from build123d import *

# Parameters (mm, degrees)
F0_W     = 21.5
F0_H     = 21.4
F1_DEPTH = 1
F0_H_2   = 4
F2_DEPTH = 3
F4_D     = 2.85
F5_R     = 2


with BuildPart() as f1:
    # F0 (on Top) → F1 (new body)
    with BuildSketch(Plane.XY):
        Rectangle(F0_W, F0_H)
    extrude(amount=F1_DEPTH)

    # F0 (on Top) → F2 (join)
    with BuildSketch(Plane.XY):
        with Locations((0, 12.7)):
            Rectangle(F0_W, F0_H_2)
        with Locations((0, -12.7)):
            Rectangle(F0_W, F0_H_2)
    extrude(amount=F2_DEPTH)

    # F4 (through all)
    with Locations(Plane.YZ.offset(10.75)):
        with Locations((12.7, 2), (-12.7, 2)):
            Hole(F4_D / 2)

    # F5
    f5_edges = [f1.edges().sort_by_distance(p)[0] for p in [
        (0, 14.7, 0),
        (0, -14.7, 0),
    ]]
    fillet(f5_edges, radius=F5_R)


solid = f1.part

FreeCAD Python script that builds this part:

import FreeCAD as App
import Part
import Sketcher
Q = App.Units.Quantity


def edges_at(feature, points):
    """Names of the edges that pass closest to the given points."""
    edges = feature.Shape.Edges
    near = lambda p: min(range(len(edges)), key=lambda i: edges[i].distToShape(Part.Vertex(*p))[0])
    return sorted({f"Edge{near(p) + 1}" for p in points})

doc = App.newDocument("Part")
body = doc.addObject("PartDesign::Body", "Body")

sketch1 = body.newObject("Sketcher::SketchObject", "Sketch")
sketch1.AttachmentSupport = (doc.getObject("XY_Plane"), [""])
sketch1.MapMode = "FlatFace"
sketch1.addGeometry([
    Part.LineSegment(App.Vector(-11, 11, 0), App.Vector(-11, -11, 0)),
    Part.LineSegment(App.Vector(-11, -11, 0), App.Vector(11, -11, 0)),
    Part.LineSegment(App.Vector(11, -11, 0), App.Vector(11, 11, 0)),
    Part.LineSegment(App.Vector(11, 11, 0), App.Vector(-11, 11, 0)),
], False)
sketch1.addConstraint([
    Sketcher.Constraint("Coincident", 0, 2, 1, 1),
    Sketcher.Constraint("Coincident", 1, 2, 2, 1),
    Sketcher.Constraint("Coincident", 2, 2, 3, 1),
    Sketcher.Constraint("Coincident", 3, 2, 0, 1),
    Sketcher.Constraint("Vertical", 0),
    Sketcher.Constraint("Horizontal", 1),
    Sketcher.Constraint("Vertical", 2),
    Sketcher.Constraint("Horizontal", 3),
    Sketcher.Constraint("Symmetric", 0, 2, 2, 2, -1, 1),
    Sketcher.Constraint("DistanceX", 1, 1, 1, 2, Q("21.5 mm")),
    Sketcher.Constraint("DistanceY", 0, 2, 0, 1, Q("21.4 mm")),
])
pad1 = body.newObject("PartDesign::Pad", "Pad")
pad1.Profile = sketch1
pad1.Length = 1

sketch2 = body.newObject("Sketcher::SketchObject", "Sketch001")
sketch2.AttachmentSupport = (doc.getObject("XY_Plane"), [""])
sketch2.MapMode = "FlatFace"
sketch2.addGeometry([
    Part.LineSegment(App.Vector(-10.8, 14.7, 0), App.Vector(-10.8, 10.7, 0)),
    Part.LineSegment(App.Vector(-10.8, 10.7, 0), App.Vector(10.8, 10.7, 0)),
    Part.LineSegment(App.Vector(10.8, 10.7, 0), App.Vector(10.8, 14.7, 0)),
    Part.LineSegment(App.Vector(10.8, 14.7, 0), App.Vector(-10.8, 14.7, 0)),
    Part.LineSegment(App.Vector(-10.8, -10.7, 0), App.Vector(-10.8, -14.7, 0)),
    Part.LineSegment(App.Vector(-10.8, -14.7, 0), App.Vector(10.8, -14.7, 0)),
    Part.LineSegment(App.Vector(10.8, -14.7, 0), App.Vector(10.8, -10.7, 0)),
    Part.LineSegment(App.Vector(10.8, -10.7, 0), App.Vector(-10.8, -10.7, 0)),
], False)
sketch2.addConstraint([
    Sketcher.Constraint("Coincident", 0, 2, 1, 1),
    Sketcher.Constraint("Coincident", 1, 2, 2, 1),
    Sketcher.Constraint("Coincident", 2, 2, 3, 1),
    Sketcher.Constraint("Coincident", 3, 2, 0, 1),
    Sketcher.Constraint("Coincident", 4, 2, 5, 1),
    Sketcher.Constraint("Coincident", 5, 2, 6, 1),
    Sketcher.Constraint("Coincident", 6, 2, 7, 1),
    Sketcher.Constraint("Coincident", 7, 2, 4, 1),
    Sketcher.Constraint("Vertical", 0),
    Sketcher.Constraint("Horizontal", 1),
    Sketcher.Constraint("Vertical", 2),
    Sketcher.Constraint("Horizontal", 3),
    Sketcher.Constraint("Vertical", 4),
    Sketcher.Constraint("Horizontal", 5),
    Sketcher.Constraint("Vertical", 6),
    Sketcher.Constraint("Horizontal", 7),
    Sketcher.Constraint("Symmetric", 2, 2, 4, 2, -1, 1),
    Sketcher.Constraint("Symmetric", 0, 2, 6, 2, -1, 1),
    Sketcher.Constraint("Vertical", 3, 2, 4, 2),
    Sketcher.Constraint("DistanceY", 0, 2, 0, 1, Q("4 mm")),
    Sketcher.Constraint("DistanceX", 1, 1, 1, 2, Q("21.5 mm")),
    Sketcher.Constraint("DistanceY", -1, 1, 0, 2, Q("10.7 mm")),
])
pad2 = body.newObject("PartDesign::Pad", "Pad001")
pad2.Profile = sketch2
pad2.Length = 3

sketch3 = body.newObject("Sketcher::SketchObject", "Sketch002")
sketch3.AttachmentSupport = (doc.getObject("YZ_Plane"), [""])
sketch3.MapMode = "FlatFace"
sketch3.AttachmentOffset = App.Placement(App.Vector(0, 0, 10.75), App.Rotation())
sketch3.addGeometry([
    Part.Circle(App.Vector(12.7, 2, 0), App.Vector(0, 0, 1), 1.4),
    Part.Circle(App.Vector(-12.7, 2, 0), App.Vector(0, 0, 1), 1.4),
], False)
sketch3.addConstraint([
    Sketcher.Constraint("Equal", 0, 1),
    Sketcher.Constraint("Symmetric", 0, 3, 1, 3, -2),
    Sketcher.Constraint("Diameter", 0, Q("2.85 mm")),
    Sketcher.Constraint("DistanceY", -1, 1, 0, 3, Q("2 mm")),
    Sketcher.Constraint("DistanceX", -1, 1, 0, 3, Q("12.7 mm")),
])
doc.recompute()
hole = body.newObject("PartDesign::Hole", "Hole")
hole.Profile = sketch3
hole.ThreadType = "None"
hole.Diameter = 2.85
hole.DepthType = "ThroughAll"
doc.recompute()

fillet = body.newObject("PartDesign::Fillet", "Fillet")
fillet.Base = (hole, edges_at(hole, [(0, 14.7, 0), (0, -14.7, 0)]))
fillet.Radius = 2

doc.recompute()
